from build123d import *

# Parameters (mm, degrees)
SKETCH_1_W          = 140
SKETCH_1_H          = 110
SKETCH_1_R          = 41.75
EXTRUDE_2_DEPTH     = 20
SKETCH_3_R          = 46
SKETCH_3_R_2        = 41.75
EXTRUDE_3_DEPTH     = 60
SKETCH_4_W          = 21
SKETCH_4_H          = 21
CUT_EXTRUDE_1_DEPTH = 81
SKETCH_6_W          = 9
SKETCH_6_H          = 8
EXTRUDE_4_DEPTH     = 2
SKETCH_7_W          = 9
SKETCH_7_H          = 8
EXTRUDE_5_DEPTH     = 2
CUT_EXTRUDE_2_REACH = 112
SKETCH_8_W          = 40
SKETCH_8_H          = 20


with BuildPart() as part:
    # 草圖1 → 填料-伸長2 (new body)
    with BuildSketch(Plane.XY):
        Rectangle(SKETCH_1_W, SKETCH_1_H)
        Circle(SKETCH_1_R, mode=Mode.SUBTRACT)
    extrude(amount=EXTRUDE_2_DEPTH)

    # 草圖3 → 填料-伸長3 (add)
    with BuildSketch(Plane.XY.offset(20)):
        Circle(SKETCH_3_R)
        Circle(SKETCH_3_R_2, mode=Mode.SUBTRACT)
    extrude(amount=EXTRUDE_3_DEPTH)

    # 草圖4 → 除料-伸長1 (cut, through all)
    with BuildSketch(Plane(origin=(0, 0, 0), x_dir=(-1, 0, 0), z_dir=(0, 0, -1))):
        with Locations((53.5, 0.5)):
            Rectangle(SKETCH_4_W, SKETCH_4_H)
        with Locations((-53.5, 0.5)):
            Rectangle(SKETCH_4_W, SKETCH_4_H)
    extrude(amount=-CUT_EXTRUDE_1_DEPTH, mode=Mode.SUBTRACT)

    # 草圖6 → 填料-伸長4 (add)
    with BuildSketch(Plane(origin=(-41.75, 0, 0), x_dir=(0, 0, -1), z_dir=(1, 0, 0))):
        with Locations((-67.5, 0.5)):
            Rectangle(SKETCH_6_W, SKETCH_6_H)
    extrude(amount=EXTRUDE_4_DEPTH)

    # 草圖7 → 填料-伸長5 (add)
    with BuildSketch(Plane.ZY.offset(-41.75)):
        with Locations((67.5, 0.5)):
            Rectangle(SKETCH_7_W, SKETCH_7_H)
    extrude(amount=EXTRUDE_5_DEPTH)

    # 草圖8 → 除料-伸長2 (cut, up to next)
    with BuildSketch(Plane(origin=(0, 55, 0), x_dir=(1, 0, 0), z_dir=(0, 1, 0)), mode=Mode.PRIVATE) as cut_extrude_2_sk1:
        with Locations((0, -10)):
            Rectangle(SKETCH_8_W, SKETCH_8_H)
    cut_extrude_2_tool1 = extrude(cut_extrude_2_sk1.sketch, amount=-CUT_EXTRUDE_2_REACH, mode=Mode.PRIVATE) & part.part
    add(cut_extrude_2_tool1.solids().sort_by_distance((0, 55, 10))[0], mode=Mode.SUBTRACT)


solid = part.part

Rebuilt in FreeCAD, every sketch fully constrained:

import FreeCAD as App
import Part
import Sketcher

V = App.Vector


def add_polygon(sketch, points):
    """Adds a closed chain of lines whose ends are joined by coincident constraints."""
    first, n = sketch.GeometryCount, len(points)
    for a, b in zip(points, points[1:] + points[:1]):
        sketch.addGeometry(Part.LineSegment(App.Vector(*a, 0), App.Vector(*b, 0)), False)
    for i in range(n):
        sketch.addConstraint(Sketcher.Constraint("Coincident", first + i, 2, first + (i + 1) % n, 1))

doc = App.newDocument("Part")
body = doc.addObject("PartDesign::Body", "Body")

# Sketch on XY plane
sketch1 = body.newObject("Sketcher::SketchObject", "Sketch")
sketch1.AttachmentSupport = (doc.getObject("XY_Plane"), [""])
sketch1.MapMode = "FlatFace"
add_polygon(sketch1, [(-70, 55), (-70, -55), (70, -55), (70, 55)])  # lines 0-3
sketch1.addGeometry(Part.Circle(V(0, 0, 0), V(0, 0, 1), 41.75), False)  # 4
sketch1.addConstraint([
    Sketcher.Constraint("Vertical", 0),
    Sketcher.Constraint("Horizontal", 1),
    Sketcher.Constraint("Vertical", 2),
    Sketcher.Constraint("Horizontal", 3),
    Sketcher.Constraint("Coincident", 4, 3, -1, 1),
    Sketcher.Constraint("Symmetric", 0, 2, 2, 2, -1, 1),
    Sketcher.Constraint("Diameter", 4, 83.5),
    Sketcher.Constraint("DistanceX", 1, 1, 1, 2, 140.0),
    Sketcher.Constraint("DistanceY", 0, 2, 0, 1, 110.0),
])
pad1 = body.newObject("PartDesign::Pad", "Pad")
pad1.Profile = sketch1
pad1.Length = 20

# Sketch on XY plane
sketch2 = body.newObject("Sketcher::SketchObject", "Sketch001")
sketch2.AttachmentSupport = (doc.getObject("XY_Plane"), [""])
sketch2.MapMode = "FlatFace"
sketch2.AttachmentOffset = App.Placement(V(0, 0, 20), App.Rotation())
sketch2.addGeometry([
    Part.Circle(V(0, 0, 0), V(0, 0, 1), 46),
    Part.Circle(V(0, 0, 0), V(0, 0, 1), 41.75),
], False)
sketch2.addConstraint([
    Sketcher.Constraint("Coincident", 0, 3, -1, 1),
    Sketcher.Constraint("Coincident", 1, 3, -1, 1),
    Sketcher.Constraint("Diameter", 0, 92.0),
    Sketcher.Constraint("Diameter", 1, 83.5),
])
pad2 = body.newObject("PartDesign::Pad", "Pad001")
pad2.Profile = sketch2
pad2.Length = 60

# Sketch on XY plane
sketch3 = body.newObject("Sketcher::SketchObject", "Sketch002")
sketch3.AttachmentSupport = (doc.getObject("XY_Plane"), [""])
sketch3.MapMode = "FlatFace"
add_polygon(sketch3, [(-43, 11), (-43, -10), (-64, -10), (-64, 11)])  # lines 0-3
add_polygon(sketch3, [(64, 11), (64, -10), (43, -10), (43, 11)])  # lines 4-7
sketch3.addConstraint([
    Sketcher.Constraint("Vertical", 0),
    Sketcher.Constraint("Horizontal", 1),
    Sketcher.Constraint("Vertical", 2),
    Sketcher.Constraint("Horizontal", 3),
    Sketcher.Constraint("Vertical", 4),
    Sketcher.Constraint("Horizontal", 5),
    Sketcher.Constraint("Vertical", 6),
    Sketcher.Constraint("Horizontal", 7),
    Sketcher.Constraint("Symmetric", 1, 2, 4, 2, -2),
    Sketcher.Constraint("Symmetric", 3, 2, 6, 2, -2),
    Sketcher.Constraint("Equal", 7, 0),
    Sketcher.Constraint("DistanceX", 1, 2, 1, 1, 21.0),
    Sketcher.Constraint("DistanceX", 0, 2, -1, 1, 43.0),
    Sketcher.Constraint("DistanceY", 0, 2, -1, 1, 10.0),
])
pocket1 = body.newObject("PartDesign::Pocket", "Pocket")
pocket1.Profile = sketch3
pocket1.Type = "ThroughAll"
pocket1.Reversed = True

# Sketch on YZ plane
sketch4 = body.newObject("Sketcher::SketchObject", "Sketch003")
sketch4.AttachmentSupport = (doc.getObject("YZ_Plane"), [""])
sketch4.MapMode = "FlatFace"
sketch4.AttachmentOffset = App.Placement(V(0, 0, -41.75), App.Rotation())
add_polygon(sketch4, [(4.5, 72), (-3.5, 72), (-3.5, 63), (4.5, 63)])  # lines 0-3
sketch4.addConstraint([
    Sketcher.Constraint("Horizontal", 0),
    Sketcher.Constraint("Vertical", 1),
    Sketcher.Constraint("Horizontal", 2),
    Sketcher.Constraint("Vertical", 3),
    Sketcher.Constraint("DistanceX", 0, 2, 0, 1, 8.0),
    Sketcher.Constraint("DistanceY", 1, 2, 1, 1, 9.0),
    Sketcher.Constraint("DistanceY", -1, 1, 0, 2, 72.0),
    Sketcher.Constraint("DistanceX", 0, 2, -1, 1, 3.5),
])
pad3 = body.newObject("PartDesign::Pad", "Pad002")
pad3.Profile = sketch4
pad3.Length = 2

# Sketch on YZ plane
sketch5 = body.newObject("Sketcher::SketchObject", "Sketch004")
sketch5.AttachmentSupport = (doc.getObject("YZ_Plane"), [""])
sketch5.MapMode = "FlatFace"
sketch5.AttachmentOffset = App.Placement(V(0, 0, 41.75), App.Rotation())
add_polygon(sketch5, [(4.5, 63), (-3.5, 63), (-3.5, 72), (4.5, 72)])  # lines 0-3
sketch5.addConstraint([
    Sketcher.Constraint("Horizontal", 0),
    Sketcher.Constraint("Vertical", 1),
    Sketcher.Constraint("Horizontal", 2),
    Sketcher.Constraint("Vertical", 3),
    Sketcher.Constraint("DistanceX", 0, 2, 0, 1, 8.0),
    Sketcher.Constraint("DistanceY", 1, 1, 1, 2, 9.0),
    Sketcher.Constraint("DistanceY", -1, 1, 0, 2, 63.0),
    Sketcher.Constraint("DistanceX", 0, 2, -1, 1, 3.5),
])
pad4 = body.newObject("PartDesign::Pad", "Pad003")
pad4.Profile = sketch5
pad4.Length = 2
pad4.Reversed = True

# Sketch on XZ plane
sketch6 = body.newObject("Sketcher::SketchObject", "Sketch005")
sketch6.AttachmentSupport = (doc.getObject("XZ_Plane"), [""])
sketch6.MapMode = "FlatFace"
sketch6.AttachmentOffset = App.Placement(V(0, 0, -55), App.Rotation())
add_polygon(sketch6, [(-20, 0), (-20, 20), (20, 20), (20, 0)])  # lines 0-3
sketch6.addConstraint([
    Sketcher.Constraint("Vertical", 0),
    Sketcher.Constraint("Horizontal", 1),
    Sketcher.Constraint("Vertical", 2),
    Sketcher.Constraint("Horizontal", 3),
    Sketcher.Constraint("Symmetric", 2, 2, 3, 2, -1, 1),
    Sketcher.Constraint("DistanceX", 1, 1, 1, 2, 40.0),
    Sketcher.Constraint("DistanceY", 0, 1, 0, 2, 20.0),
])
pocket2 = body.newObject("PartDesign::Pocket", "Pocket001")
pocket2.Profile = sketch6
pocket2.Type = "UpToFirst"
pocket2.Reversed = True

doc.recompute()
